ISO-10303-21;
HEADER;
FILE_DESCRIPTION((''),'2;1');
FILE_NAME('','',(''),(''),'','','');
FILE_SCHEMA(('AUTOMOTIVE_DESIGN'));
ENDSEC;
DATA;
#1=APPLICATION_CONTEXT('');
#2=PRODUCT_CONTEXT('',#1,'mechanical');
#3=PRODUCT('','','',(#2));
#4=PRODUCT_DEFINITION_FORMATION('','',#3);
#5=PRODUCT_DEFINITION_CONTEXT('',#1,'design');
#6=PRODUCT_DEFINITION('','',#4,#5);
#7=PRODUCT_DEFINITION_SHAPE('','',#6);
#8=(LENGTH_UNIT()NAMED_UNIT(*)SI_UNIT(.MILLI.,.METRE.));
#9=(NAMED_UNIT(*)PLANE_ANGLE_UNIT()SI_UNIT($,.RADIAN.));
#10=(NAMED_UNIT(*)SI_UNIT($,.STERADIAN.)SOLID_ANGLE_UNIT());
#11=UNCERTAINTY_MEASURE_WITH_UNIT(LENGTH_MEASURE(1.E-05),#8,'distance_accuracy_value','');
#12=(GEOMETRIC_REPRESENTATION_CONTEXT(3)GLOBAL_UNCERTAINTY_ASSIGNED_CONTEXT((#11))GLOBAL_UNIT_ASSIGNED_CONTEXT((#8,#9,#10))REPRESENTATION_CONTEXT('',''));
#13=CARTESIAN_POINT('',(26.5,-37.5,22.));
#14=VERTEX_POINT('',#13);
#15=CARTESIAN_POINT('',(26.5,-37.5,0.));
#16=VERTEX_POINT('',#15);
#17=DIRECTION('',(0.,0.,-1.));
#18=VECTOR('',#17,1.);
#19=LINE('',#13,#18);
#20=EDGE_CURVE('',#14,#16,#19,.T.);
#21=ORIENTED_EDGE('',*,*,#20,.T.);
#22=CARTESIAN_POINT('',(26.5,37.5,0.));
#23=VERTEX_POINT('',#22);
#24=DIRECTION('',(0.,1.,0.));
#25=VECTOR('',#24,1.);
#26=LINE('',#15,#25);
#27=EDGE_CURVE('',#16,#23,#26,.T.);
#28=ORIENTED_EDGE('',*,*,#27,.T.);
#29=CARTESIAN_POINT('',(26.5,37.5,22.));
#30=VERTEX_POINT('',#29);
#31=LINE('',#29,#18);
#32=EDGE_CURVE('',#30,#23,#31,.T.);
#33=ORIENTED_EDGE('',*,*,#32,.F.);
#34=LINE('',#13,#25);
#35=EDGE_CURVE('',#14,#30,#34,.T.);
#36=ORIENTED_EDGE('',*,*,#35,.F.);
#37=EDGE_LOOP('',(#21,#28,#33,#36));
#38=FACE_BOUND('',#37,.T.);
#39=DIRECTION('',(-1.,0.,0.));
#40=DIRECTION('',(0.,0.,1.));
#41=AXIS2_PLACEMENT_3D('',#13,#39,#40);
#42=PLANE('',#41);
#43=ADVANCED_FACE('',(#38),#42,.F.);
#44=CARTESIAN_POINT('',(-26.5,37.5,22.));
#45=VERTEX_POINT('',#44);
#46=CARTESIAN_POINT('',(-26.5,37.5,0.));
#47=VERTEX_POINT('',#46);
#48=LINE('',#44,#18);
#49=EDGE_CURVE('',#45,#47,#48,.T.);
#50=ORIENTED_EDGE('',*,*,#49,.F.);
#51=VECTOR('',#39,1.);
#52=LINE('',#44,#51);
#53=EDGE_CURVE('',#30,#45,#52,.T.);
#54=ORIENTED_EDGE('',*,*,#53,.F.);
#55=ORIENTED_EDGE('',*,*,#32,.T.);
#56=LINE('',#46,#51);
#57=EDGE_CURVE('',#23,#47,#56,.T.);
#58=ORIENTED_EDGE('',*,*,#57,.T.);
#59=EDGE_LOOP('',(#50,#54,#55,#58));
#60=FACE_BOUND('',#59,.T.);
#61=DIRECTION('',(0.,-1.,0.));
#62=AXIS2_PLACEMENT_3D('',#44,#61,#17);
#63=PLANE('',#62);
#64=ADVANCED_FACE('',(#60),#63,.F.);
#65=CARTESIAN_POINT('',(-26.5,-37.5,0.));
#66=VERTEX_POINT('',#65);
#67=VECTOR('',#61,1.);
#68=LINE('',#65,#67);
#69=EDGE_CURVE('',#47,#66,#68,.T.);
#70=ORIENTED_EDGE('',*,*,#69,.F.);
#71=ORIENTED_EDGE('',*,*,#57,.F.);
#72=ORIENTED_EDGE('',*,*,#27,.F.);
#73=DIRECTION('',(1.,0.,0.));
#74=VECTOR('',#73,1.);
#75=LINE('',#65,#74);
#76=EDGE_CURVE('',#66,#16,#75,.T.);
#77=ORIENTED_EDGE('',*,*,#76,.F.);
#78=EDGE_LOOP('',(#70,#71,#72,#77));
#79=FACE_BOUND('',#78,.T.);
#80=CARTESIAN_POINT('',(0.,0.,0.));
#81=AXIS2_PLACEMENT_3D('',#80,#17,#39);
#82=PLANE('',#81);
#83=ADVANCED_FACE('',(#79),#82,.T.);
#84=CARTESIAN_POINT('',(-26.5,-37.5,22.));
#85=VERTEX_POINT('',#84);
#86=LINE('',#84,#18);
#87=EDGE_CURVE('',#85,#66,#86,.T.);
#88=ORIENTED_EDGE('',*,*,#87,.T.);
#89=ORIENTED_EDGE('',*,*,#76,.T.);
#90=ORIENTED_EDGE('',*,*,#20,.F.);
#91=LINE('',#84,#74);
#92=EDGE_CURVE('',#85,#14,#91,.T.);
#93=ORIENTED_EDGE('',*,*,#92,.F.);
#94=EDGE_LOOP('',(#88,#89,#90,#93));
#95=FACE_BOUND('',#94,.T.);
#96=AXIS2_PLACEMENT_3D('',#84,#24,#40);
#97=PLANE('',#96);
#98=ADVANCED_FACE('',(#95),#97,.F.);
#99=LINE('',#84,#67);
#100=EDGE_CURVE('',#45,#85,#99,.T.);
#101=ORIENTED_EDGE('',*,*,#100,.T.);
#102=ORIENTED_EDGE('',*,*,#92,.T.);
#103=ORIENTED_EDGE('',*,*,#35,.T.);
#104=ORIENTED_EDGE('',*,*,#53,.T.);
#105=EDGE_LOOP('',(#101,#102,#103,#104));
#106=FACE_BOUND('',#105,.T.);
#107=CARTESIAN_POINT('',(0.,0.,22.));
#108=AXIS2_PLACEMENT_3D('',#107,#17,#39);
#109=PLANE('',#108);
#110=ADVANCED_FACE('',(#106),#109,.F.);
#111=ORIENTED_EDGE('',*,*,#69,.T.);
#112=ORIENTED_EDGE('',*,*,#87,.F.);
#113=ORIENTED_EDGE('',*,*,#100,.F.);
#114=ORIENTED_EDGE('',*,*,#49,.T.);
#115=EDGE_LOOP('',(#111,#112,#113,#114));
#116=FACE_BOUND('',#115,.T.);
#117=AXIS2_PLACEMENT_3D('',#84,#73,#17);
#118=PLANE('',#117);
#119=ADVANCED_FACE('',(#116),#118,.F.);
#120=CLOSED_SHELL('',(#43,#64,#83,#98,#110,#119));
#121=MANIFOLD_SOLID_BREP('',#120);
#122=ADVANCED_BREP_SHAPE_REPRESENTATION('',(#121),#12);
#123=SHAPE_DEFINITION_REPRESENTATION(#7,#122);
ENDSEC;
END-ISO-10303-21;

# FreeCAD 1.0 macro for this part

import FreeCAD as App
import Part
import Sketcher
Q = App.Units.Quantity


def add_polygon(sketch, points):
    """Adds a closed chain of lines whose ends are joined by coincident constraints."""
    first, n = sketch.GeometryCount, len(points)
    for a, b in zip(points, points[1:] + points[:1]):
        sketch.addGeometry(Part.LineSegment(App.Vector(*a, 0), App.Vector(*b, 0)), False)
    for i in range(n):
        sketch.addConstraint(Sketcher.Constraint("Coincident", first + i, 2, first + (i + 1) % n, 1))

doc = App.newDocument("Part")
body = doc.addObject("PartDesign::Body", "Body")

sketch1 = body.newObject("Sketcher::SketchObject", "Sketch")
sketch1.AttachmentSupport = (doc.getObject("XY_Plane"), [""])
sketch1.MapMode = "FlatFace"
add_polygon(sketch1, [(-26.5, 37.5), (-26.5, -37.5), (26.5, -37.5), (26.5, 37.5)])
sketch1.addConstraint(Sketcher.Constraint("Vertical", 0))
sketch1.addConstraint(Sketcher.Constraint("Horizontal", 1))
sketch1.addConstraint(Sketcher.Constraint("Vertical", 2))
sketch1.addConstraint(Sketcher.Constraint("Horizontal", 3))
sketch1.addConstraint(Sketcher.Constraint("Symmetric", 0, 2, 2, 2, -1, 1))
sketch1.addConstraint(Sketcher.Constraint("DistanceX", 1, 1, 1, 2, Q("53 mm")))
sketch1.addConstraint(Sketcher.Constraint("DistanceY", 0, 2, 0, 1, Q("75 mm")))
pad1 = body.newObject("PartDesign::Pad", "Pad")
pad1.Profile = sketch1
pad1.Length = 22

doc.recompute()
